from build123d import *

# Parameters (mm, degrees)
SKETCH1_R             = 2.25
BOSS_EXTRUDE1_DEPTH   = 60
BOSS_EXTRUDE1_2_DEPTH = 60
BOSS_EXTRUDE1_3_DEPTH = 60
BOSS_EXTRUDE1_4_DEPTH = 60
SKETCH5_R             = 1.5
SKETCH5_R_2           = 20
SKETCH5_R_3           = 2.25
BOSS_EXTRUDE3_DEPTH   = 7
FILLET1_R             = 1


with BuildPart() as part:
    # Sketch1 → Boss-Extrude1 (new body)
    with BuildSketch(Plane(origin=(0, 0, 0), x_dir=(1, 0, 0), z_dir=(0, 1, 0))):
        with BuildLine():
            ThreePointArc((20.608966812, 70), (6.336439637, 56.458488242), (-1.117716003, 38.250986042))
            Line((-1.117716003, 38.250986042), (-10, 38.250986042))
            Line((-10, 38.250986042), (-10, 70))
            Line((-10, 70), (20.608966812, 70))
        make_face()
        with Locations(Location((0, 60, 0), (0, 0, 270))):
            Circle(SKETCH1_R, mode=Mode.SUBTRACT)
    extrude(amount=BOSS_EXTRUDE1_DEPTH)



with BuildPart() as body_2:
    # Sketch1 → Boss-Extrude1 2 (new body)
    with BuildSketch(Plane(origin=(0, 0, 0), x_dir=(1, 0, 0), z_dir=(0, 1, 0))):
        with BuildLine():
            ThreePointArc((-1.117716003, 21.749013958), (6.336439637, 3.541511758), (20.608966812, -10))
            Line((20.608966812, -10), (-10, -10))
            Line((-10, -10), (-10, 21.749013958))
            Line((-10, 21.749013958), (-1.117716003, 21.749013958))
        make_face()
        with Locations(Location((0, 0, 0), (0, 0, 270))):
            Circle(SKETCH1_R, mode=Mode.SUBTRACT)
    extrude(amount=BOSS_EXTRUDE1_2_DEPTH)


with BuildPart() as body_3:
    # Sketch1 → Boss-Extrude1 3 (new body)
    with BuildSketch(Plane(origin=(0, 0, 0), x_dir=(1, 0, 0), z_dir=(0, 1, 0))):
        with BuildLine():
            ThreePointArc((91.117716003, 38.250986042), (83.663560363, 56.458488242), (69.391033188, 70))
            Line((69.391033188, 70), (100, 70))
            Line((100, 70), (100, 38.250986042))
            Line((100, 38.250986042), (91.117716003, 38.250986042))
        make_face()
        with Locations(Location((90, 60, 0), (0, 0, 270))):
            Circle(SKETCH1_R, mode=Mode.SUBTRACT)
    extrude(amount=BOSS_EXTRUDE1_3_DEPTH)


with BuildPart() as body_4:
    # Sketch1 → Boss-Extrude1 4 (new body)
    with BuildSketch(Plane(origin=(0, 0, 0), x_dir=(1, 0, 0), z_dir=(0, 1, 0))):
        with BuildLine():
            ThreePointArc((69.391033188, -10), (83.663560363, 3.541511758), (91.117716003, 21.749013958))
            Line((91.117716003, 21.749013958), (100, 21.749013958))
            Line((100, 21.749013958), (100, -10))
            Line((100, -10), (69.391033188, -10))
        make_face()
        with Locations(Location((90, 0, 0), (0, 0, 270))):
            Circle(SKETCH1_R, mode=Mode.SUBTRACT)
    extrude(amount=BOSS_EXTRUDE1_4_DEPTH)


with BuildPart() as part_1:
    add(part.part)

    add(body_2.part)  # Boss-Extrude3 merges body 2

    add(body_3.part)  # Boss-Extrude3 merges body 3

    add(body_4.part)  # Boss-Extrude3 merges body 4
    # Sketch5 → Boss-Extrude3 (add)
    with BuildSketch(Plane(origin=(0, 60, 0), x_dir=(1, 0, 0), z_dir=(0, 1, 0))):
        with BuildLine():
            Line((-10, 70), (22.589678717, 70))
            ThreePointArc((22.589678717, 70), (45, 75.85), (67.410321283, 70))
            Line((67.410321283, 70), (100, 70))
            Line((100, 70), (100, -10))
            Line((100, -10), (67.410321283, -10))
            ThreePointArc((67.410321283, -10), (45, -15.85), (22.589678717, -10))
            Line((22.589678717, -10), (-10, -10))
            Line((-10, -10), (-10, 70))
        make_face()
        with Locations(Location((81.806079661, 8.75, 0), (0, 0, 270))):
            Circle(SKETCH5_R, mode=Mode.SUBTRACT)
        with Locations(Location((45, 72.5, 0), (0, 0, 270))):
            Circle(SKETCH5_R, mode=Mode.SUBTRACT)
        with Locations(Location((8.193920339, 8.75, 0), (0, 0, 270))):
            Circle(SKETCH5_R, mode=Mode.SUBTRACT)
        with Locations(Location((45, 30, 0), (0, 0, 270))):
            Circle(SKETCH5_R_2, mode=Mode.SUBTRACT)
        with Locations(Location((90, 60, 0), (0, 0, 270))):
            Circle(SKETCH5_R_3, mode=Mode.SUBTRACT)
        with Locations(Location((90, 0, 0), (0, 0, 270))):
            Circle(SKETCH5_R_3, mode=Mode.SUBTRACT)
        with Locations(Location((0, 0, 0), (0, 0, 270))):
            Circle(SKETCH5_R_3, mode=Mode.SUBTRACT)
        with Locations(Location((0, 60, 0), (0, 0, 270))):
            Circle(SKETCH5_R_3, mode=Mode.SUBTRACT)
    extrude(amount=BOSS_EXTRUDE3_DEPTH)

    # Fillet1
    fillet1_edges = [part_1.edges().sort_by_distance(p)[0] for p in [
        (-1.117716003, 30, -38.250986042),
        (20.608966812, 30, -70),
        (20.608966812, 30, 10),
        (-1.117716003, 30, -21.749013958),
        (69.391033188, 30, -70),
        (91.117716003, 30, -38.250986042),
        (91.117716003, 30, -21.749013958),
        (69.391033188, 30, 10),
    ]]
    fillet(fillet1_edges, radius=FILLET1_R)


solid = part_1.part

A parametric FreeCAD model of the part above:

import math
import FreeCAD as App
import Part
import Sketcher
Q = App.Units.Quantity


def edges_at(feature, points):
    """Names of the edges that pass closest to the given points."""
    edges = feature.Shape.Edges
    near = lambda p: min(range(len(edges)), key=lambda i: edges[i].distToShape(Part.Vertex(*p))[0])
    return sorted({f"Edge{near(p) + 1}" for p in points})

doc = App.newDocument("Part")
body = doc.addObject("PartDesign::Body", "Body")

# Sketch on XZ plane
sketch1 = body.newObject("Sketcher::SketchObject", "Sketch")
sketch1.AttachmentSupport = (doc.getObject("XZ_Plane"), [""])
sketch1.MapMode = "FlatFace"
sketch1.addGeometry([
    Part.ArcOfCircle(Part.Circle(App.Vector(45, -30, 0), App.Vector(0, 0, 1), 46.8), math.radians(-170), math.radians(-121)),  # 0
    Part.LineSegment(App.Vector(20.6, -70, 0), App.Vector(-10, -70, 0)),  # 1
    Part.LineSegment(App.Vector(-10, -70, 0), App.Vector(-10, -38.3, 0)),  # 2
    Part.LineSegment(App.Vector(-10, -38.3, 0), App.Vector(-1.1, -38.3, 0)),  # 3
    Part.Circle(App.Vector(0, -60, 0), App.Vector(0, 0, 1), 2.2),  # 4
], False)
sketch1.addConstraint([
    Sketcher.Constraint("Coincident", 0, 2, 1, 1),
    Sketcher.Constraint("Coincident", 1, 2, 2, 1),
    Sketcher.Constraint("Coincident", 2, 2, 3, 1),
    Sketcher.Constraint("Coincident", 3, 2, 0, 1),
    Sketcher.Constraint("Horizontal", 1),
    Sketcher.Constraint("Vertical", 2),
    Sketcher.Constraint("Horizontal", 3),
    Sketcher.Constraint("PointOnObject", 4, 3, -2),
    Sketcher.Constraint("Diameter", 4, Q("4.5 mm")),
    Sketcher.Constraint("Radius", 0, Q("46.85 mm")),
    Sketcher.Constraint("DistanceX", -1, 1, 0, 3, Q("45 mm")),
    Sketcher.Constraint("DistanceY", 0, 3, -1, 1, Q("30 mm")),
    Sketcher.Constraint("DistanceY", 4, 3, -1, 1, Q("60 mm")),
    Sketcher.Constraint("DistanceY", 0, 2, -1, 1, Q("70 mm")),
    Sketcher.Constraint("DistanceX", 1, 2, -1, 1, Q("10 mm")),
    Sketcher.Constraint("DistanceX", 3, 1, 3, 2, Q("8.882284 mm")),
])
pad1 = body.newObject("PartDesign::Pad", "Pad")
pad1.Profile = sketch1
pad1.Length = 60
pad1.Reversed = True
body2 = doc.addObject("PartDesign::Body", "Body001")

# Sketch on XZ plane
sketch2 = body2.newObject("Sketcher::SketchObject", "Sketch001")
sketch2.AttachmentSupport = (doc.getObject("XZ_Plane001"), [""])
sketch2.MapMode = "FlatFace"
sketch2.addGeometry([
    Part.ArcOfCircle(Part.Circle(App.Vector(45, -30, 0), App.Vector(0, 0, 1), 46.8), math.radians(121), math.radians(170)),  # 0
    Part.LineSegment(App.Vector(-1.1, -21.7, 0), App.Vector(-10, -21.7, 0)),  # 1
    Part.LineSegment(App.Vector(-10, -21.7, 0), App.Vector(-10, 10, 0)),  # 2
    Part.LineSegment(App.Vector(-10, 10, 0), App.Vector(20.6, 10, 0)),  # 3
    Part.Circle(App.Vector(0, 0, 0), App.Vector(0, 0, 1), 2.2),  # 4
], False)
sketch2.addConstraint([
    Sketcher.Constraint("Coincident", 0, 2, 1, 1),
    Sketcher.Constraint("Coincident", 1, 2, 2, 1),
    Sketcher.Constraint("Coincident", 2, 2, 3, 1),
    Sketcher.Constraint("Coincident", 3, 2, 0, 1),
    Sketcher.Constraint("Horizontal", 1),
    Sketcher.Constraint("Vertical", 2),
    Sketcher.Constraint("Horizontal", 3),
    Sketcher.Constraint("Coincident", 4, 3, -1, 1),
    Sketcher.Constraint("Diameter", 4, Q("4.5 mm")),
    Sketcher.Constraint("Radius", 0, Q("46.85 mm")),
    Sketcher.Constraint("DistanceX", -1, 1, 0, 3, Q("45 mm")),
    Sketcher.Constraint("DistanceY", 0, 3, -1, 1, Q("30 mm")),
    Sketcher.Constraint("DistanceX", 1, 2, -1, 1, Q("10 mm")),
    Sketcher.Constraint("DistanceY", -1, 1, 2, 2, Q("10 mm")),
    Sketcher.Constraint("DistanceX", 1, 2, 1, 1, Q("8.882284 mm")),
])
pad2 = body2.newObject("PartDesign::Pad", "Pad001")
pad2.Profile = sketch2
pad2.Length = 60
pad2.Reversed = True
body3 = doc.addObject("PartDesign::Body", "Body002")

# Sketch on XZ plane
sketch3 = body3.newObject("Sketcher::SketchObject", "Sketch002")
sketch3.AttachmentSupport = (doc.getObject("XZ_Plane002"), [""])
sketch3.MapMode = "FlatFace"
sketch3.addGeometry([
    Part.ArcOfCircle(Part.Circle(App.Vector(45, -30, 0), App.Vector(0, 0, 1), 46.8), math.radians(-59), math.radians(-10)),  # 0
    Part.LineSegment(App.Vector(91.1, -38.3, 0), App.Vector(100, -38.3, 0)),  # 1
    Part.LineSegment(App.Vector(100, -38.3, 0), App.Vector(100, -70, 0)),  # 2
    Part.LineSegment(App.Vector(100, -70, 0), App.Vector(69.4, -70, 0)),  # 3
    Part.Circle(App.Vector(90, -60, 0), App.Vector(0, 0, 1), 2.2),  # 4
], False)
sketch3.addConstraint([
    Sketcher.Constraint("Coincident", 0, 2, 1, 1),
    Sketcher.Constraint("Coincident", 1, 2, 2, 1),
    Sketcher.Constraint("Coincident", 2, 2, 3, 1),
    Sketcher.Constraint("Coincident", 3, 2, 0, 1),
    Sketcher.Constraint("Horizontal", 1),
    Sketcher.Constraint("Vertical", 2),
    Sketcher.Constraint("Horizontal", 3),
    Sketcher.Constraint("Diameter", 4, Q("4.5 mm")),
    Sketcher.Constraint("Radius", 0, Q("46.85 mm")),
    Sketcher.Constraint("DistanceX", -1, 1, 0, 3, Q("45 mm")),
    Sketcher.Constraint("DistanceY", 0, 3, -1, 1, Q("30 mm")),
    Sketcher.Constraint("DistanceX", -1, 1, 4, 3, Q("90 mm")),
    Sketcher.Constraint("DistanceY", 4, 3, -1, 1, Q("60 mm")),
    Sketcher.Constraint("DistanceX", -1, 1, 1, 2, Q("100 mm")),
    Sketcher.Constraint("DistanceY", 2, 2, -1, 1, Q("70 mm")),
    Sketcher.Constraint("DistanceX", 1, 1, 1, 2, Q("8.882284 mm")),
])
pad3 = body3.newObject("PartDesign::Pad", "Pad002")
pad3.Profile = sketch3
pad3.Length = 60
pad3.Reversed = True
body4 = doc.addObject("PartDesign::Body", "Body003")

# Sketch on XZ plane
sketch4 = body4.newObject("Sketcher::SketchObject", "Sketch003")
sketch4.AttachmentSupport = (doc.getObject("XZ_Plane003"), [""])
sketch4.MapMode = "FlatFace"
sketch4.addGeometry([
    Part.ArcOfCircle(Part.Circle(App.Vector(45, -30, 0), App.Vector(0, 0, 1), 46.8), math.radians(10), math.radians(59)),  # 0
    Part.LineSegment(App.Vector(69.4, 10, 0), App.Vector(100, 10, 0)),  # 1
    Part.LineSegment(App.Vector(100, 10, 0), App.Vector(100, -21.7, 0)),  # 2
    Part.LineSegment(App.Vector(100, -21.7, 0), App.Vector(91.1, -21.7, 0)),  # 3
    Part.Circle(App.Vector(90, 0, 0), App.Vector(0, 0, 1), 2.2),  # 4
], False)
sketch4.addConstraint([
    Sketcher.Constraint("Coincident", 0, 2, 1, 1),
    Sketcher.Constraint("Coincident", 1, 2, 2, 1),
    Sketcher.Constraint("Coincident", 2, 2, 3, 1),
    Sketcher.Constraint("Coincident", 3, 2, 0, 1),
    Sketcher.Constraint("Horizontal", 1),
    Sketcher.Constraint("Vertical", 2),
    Sketcher.Constraint("Horizontal", 3),
    Sketcher.Constraint("PointOnObject", 4, 3, -1),
    Sketcher.Constraint("Diameter", 4, Q("4.5 mm")),
    Sketcher.Constraint("Radius", 0, Q("46.85 mm")),
    Sketcher.Constraint("DistanceX", -1, 1, 0, 3, Q("45 mm")),
    Sketcher.Constraint("DistanceY", 0, 3, -1, 1, Q("30 mm")),
    Sketcher.Constraint("DistanceX", -1, 1, 4, 3, Q("90 mm")),
    Sketcher.Constraint("DistanceY", -1, 1, 0, 2, Q("10 mm")),
    Sketcher.Constraint("DistanceX", -1, 1, 1, 2, Q("100 mm")),
    Sketcher.Constraint("DistanceX", 3, 2, 3, 1, Q("8.882284 mm")),
])
pad4 = body4.newObject("PartDesign::Pad", "Pad003")
pad4.Profile = sketch4
pad4.Length = 60
pad4.Reversed = True
body.AllowCompound = True
doc.recompute()

boolean = body.newObject("PartDesign::Boolean", "Boolean")
boolean.Type = "Fuse"
boolean.addObjects([body2])
doc.recompute()

boolean2 = body.newObject("PartDesign::Boolean", "Boolean001")
boolean2.Type = "Fuse"
boolean2.addObjects([body3])
doc.recompute()

boolean3 = body.newObject("PartDesign::Boolean", "Boolean002")
boolean3.Type = "Fuse"
boolean3.addObjects([body4])

# Sketch on XZ plane
sketch5 = body.newObject("Sketcher::SketchObject", "Sketch004")
sketch5.AttachmentSupport = (doc.getObject("XZ_Plane"), [""])
sketch5.MapMode = "FlatFace"
sketch5.AttachmentOffset = App.Placement(App.Vector(0, 0, -60), App.Rotation())
sketch5.addGeometry([
    Part.LineSegment(App.Vector(22.6, -70, 0), App.Vector(-10, -70, 0)),  # 0
    Part.LineSegment(App.Vector(-10, -70, 0), App.Vector(-10, 10, 0)),  # 1
    Part.LineSegment(App.Vector(-10, 10, 0), App.Vector(22.6, 10, 0)),  # 2
    Part.ArcOfCircle(Part.Circle(App.Vector(45, -30, 0), App.Vector(0, 0, 1), 45.9), math.radians(61), math.radians(119)),  # 3
    Part.LineSegment(App.Vector(67.4, 10, 0), App.Vector(100, 10, 0)),  # 4
    Part.LineSegment(App.Vector(100, 10, 0), App.Vector(100, -70, 0)),  # 5
    Part.LineSegment(App.Vector(100, -70, 0), App.Vector(67.4, -70, 0)),  # 6
    Part.ArcOfCircle(Part.Circle(App.Vector(45, -30, 0), App.Vector(0, 0, 1), 45.9), math.radians(-119), math.radians(-61)),  # 7
    Part.Circle(App.Vector(90, 0, 0), App.Vector(0, 0, 1), 2.2),  # 8
    Part.Circle(App.Vector(81.8, -8.8, 0), App.Vector(0, 0, 1), 1.5),  # 9
    Part.Circle(App.Vector(0, 0, 0), App.Vector(0, 0, 1), 2.2),  # 10
    Part.Circle(App.Vector(8.2, -8.8, 0), App.Vector(0, 0, 1), 1.5),  # 11
    Part.Circle(App.Vector(45, -30, 0), App.Vector(0, 0, 1), 20),  # 12
    Part.Circle(App.Vector(90, -60, 0), App.Vector(0, 0, 1), 2.2),  # 13
    Part.Circle(App.Vector(45, -72.5, 0), App.Vector(0, 0, 1), 1.5),  # 14
    Part.Circle(App.Vector(0, -60, 0), App.Vector(0, 0, 1), 2.2),  # 15
], False)
sketch5.addConstraint([
    Sketcher.Constraint("Coincident", 0, 2, 1, 1),
    Sketcher.Constraint("Coincident", 1, 2, 2, 1),
    Sketcher.Constraint("Coincident", 2, 2, 3, 2),
    Sketcher.Constraint("Coincident", 3, 1, 4, 1),
    Sketcher.Constraint("Coincident", 4, 2, 5, 1),
    Sketcher.Constraint("Coincident", 5, 2, 6, 1),
    Sketcher.Constraint("Coincident", 6, 2, 7, 2),
    Sketcher.Constraint("Coincident", 7, 1, 0, 1),
    Sketcher.Constraint("Horizontal", 0),
    Sketcher.Constraint("Vertical", 1),
    Sketcher.Constraint("Horizontal", 2),
    Sketcher.Constraint("Horizontal", 4),
    Sketcher.Constraint("Vertical", 5),
    Sketcher.Constraint("Horizontal", 6),
    Sketcher.Constraint("Coincident", 10, 3, -1, 1),
    Sketcher.Constraint("Coincident", 7, 3, 3, 3),
    Sketcher.Constraint("Coincident", 12, 3, 3, 3),
    Sketcher.Constraint("Equal", 3, 7),
    Sketcher.Constraint("Equal", 8, 10),
    Sketcher.Constraint("Equal", 9, 11),
    Sketcher.Constraint("Equal", 10, 13),
    Sketcher.Constraint("Equal", 11, 14),
    Sketcher.Constraint("Equal", 13, 15),
    Sketcher.Constraint("PointOnObject", 8, 3, -1),
    Sketcher.Constraint("PointOnObject", 15, 3, -2),
    Sketcher.Constraint("Horizontal", 9, 3, 11, 3),
    Sketcher.Constraint("Horizontal", 13, 3, 15, 3),
    Sketcher.Constraint("Horizontal", 2, 2, 3, 1),
    Sketcher.Constraint("Horizontal", 0, 2, 5, 2),
    Sketcher.Constraint("Vertical", 8, 3, 13, 3),
    Sketcher.Constraint("Vertical", 12, 3, 14, 3),
    Sketcher.Constraint("Vertical", 3, 1, 6, 2),
    Sketcher.Constraint("Equal", 2, 4),
    Sketcher.Constraint("Diameter", 9, Q("3 mm")),
    Sketcher.Constraint("Diameter", 12, Q("40 mm")),
    Sketcher.Constraint("Diameter", 8, Q("4.5 mm")),
    Sketcher.Constraint("DistanceY", 1, 1, 1, 2, Q("80 mm")),
    Sketcher.Constraint("Radius", 3, Q("45.85 mm")),
    Sketcher.Constraint("DistanceX", -1, 1, 3, 3, Q("45 mm")),
    Sketcher.Constraint("DistanceY", 3, 3, -1, 1, Q("30 mm")),
    Sketcher.Constraint("DistanceX", -1, 1, 8, 3, Q("90 mm")),
    Sketcher.Constraint("DistanceY", 13, 3, -1, 1, Q("60 mm")),
    Sketcher.Constraint("DistanceX", 0, 2, -1, 1, Q("10 mm")),
    Sketcher.Constraint("DistanceY", 14, 3, -1, 1, Q("72.5 mm")),
    Sketcher.Constraint("DistanceY", 9, 3, -1, 1, Q("8.75 mm")),
    Sketcher.Constraint("DistanceX", -1, 1, 9, 3, Q("81.80608 mm")),
    Sketcher.Constraint("DistanceX", -1, 1, 11, 3, Q("8.19392 mm")),
])
pad5 = body.newObject("PartDesign::Pad", "Pad004")
pad5.Profile = sketch5
pad5.Length = 7
pad5.Reversed = True
doc.recompute()

fillet = body.newObject("PartDesign::Fillet", "Fillet")
fillet.Base = (pad5, edges_at(pad5, [
    (-1.118, 30, -38.251),
    (20.609, 30, -70),
    (20.609, 30, 10),
    (-1.118, 30, -21.749),
    (69.391, 30, -70),
    (91.118, 30, -38.251),
    (91.118, 30, -21.749),
    (69.391, 30, 10),
]))
fillet.Radius = 1

doc.recompute()
